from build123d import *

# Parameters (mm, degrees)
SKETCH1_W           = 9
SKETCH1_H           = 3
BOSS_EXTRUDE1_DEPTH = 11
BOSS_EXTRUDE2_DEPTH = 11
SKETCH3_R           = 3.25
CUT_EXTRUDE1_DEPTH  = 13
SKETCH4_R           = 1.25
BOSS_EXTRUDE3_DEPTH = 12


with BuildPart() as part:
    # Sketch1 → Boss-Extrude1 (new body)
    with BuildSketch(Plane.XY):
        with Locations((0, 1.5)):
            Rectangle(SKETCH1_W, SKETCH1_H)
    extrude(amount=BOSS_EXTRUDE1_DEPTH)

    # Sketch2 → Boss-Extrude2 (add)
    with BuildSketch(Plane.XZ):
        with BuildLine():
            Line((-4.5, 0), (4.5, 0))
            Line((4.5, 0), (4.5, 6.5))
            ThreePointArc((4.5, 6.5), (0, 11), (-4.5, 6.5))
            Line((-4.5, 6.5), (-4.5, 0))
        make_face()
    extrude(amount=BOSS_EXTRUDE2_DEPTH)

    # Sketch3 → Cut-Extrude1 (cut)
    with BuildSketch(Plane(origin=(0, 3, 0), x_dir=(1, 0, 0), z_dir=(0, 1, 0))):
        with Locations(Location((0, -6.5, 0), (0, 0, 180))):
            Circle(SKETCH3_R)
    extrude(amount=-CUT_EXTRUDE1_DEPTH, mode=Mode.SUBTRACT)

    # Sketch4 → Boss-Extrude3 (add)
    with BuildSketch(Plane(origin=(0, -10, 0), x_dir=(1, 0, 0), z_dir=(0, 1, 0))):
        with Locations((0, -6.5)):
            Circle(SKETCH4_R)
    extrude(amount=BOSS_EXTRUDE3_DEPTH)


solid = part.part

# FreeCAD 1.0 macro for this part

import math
import FreeCAD as App
import Part
import Sketcher

V = App.Vector
Q = App.Units.Quantity


def add_polygon(sketch, points):
    """Adds a closed chain of lines whose ends are joined by coincident constraints."""
    first, n = sketch.GeometryCount, len(points)
    for a, b in zip(points, points[1:] + points[:1]):
        sketch.addGeometry(Part.LineSegment(App.Vector(*a, 0), App.Vector(*b, 0)), False)
    for i in range(n):
        sketch.addConstraint(Sketcher.Constraint("Coincident", first + i, 2, first + (i + 1) % n, 1))

doc = App.newDocument("Part")
body = doc.addObject("PartDesign::Body", "Body")

# Sketch on XY plane
sketch1 = body.newObject("Sketcher::SketchObject", "Sketch")
sketch1.AttachmentSupport = (doc.getObject("XY_Plane"), [""])
sketch1.MapMode = "FlatFace"
add_polygon(sketch1, [(-4.5, 3), (-4.5, 0), (4.5, 0), (4.5, 3)])  # lines 0-3
sketch1.addConstraint(Sketcher.Constraint("Vertical", 0))
sketch1.addConstraint(Sketcher.Constraint("Horizontal", 1))
sketch1.addConstraint(Sketcher.Constraint("Vertical", 2))
sketch1.addConstraint(Sketcher.Constraint("Horizontal", 3))
sketch1.addConstraint(Sketcher.Constraint("Symmetric", 0, 2, 1, 2, -1, 1))
sketch1.addConstraint(Sketcher.Constraint("DistanceX", 1, 1, 1, 2, Q("9 mm")))
sketch1.addConstraint(Sketcher.Constraint("DistanceY", 0, 2, 0, 1, Q("3 mm")))
pad1 = body.newObject("PartDesign::Pad", "Pad")
pad1.Profile = sketch1
pad1.Length = 11

# Sketch on XZ plane
sketch2 = body.newObject("Sketcher::SketchObject", "Sketch001")
sketch2.AttachmentSupport = (doc.getObject("XZ_Plane"), [""])
sketch2.MapMode = "FlatFace"
sketch2.addGeometry(Part.LineSegment(V(-4.5, 0, 0), V(4.5, 0, 0)), False)
sketch2.addGeometry(Part.LineSegment(V(4.5, 0, 0), V(4.5, 6.5, 0)), False)
sketch2.addGeometry(Part.ArcOfCircle(Part.Circle(V(0, 6.5, 0), V(0, 0, 1), 4.5), math.radians(0), math.radians(180)), False)
sketch2.addGeometry(Part.LineSegment(V(-4.5, 6.5, 0), V(-4.5, 0, 0)), False)
sketch2.addConstraint(Sketcher.Constraint("Coincident", 0, 2, 1, 1))
sketch2.addConstraint(Sketcher.Constraint("Tangent", 1, 2, 2, 1))
sketch2.addConstraint(Sketcher.Constraint("Tangent", 2, 2, 3, 1))
sketch2.addConstraint(Sketcher.Constraint("Coincident", 3, 2, 0, 1))
sketch2.addConstraint(Sketcher.Constraint("Horizontal", 0))
sketch2.addConstraint(Sketcher.Constraint("Vertical", 1))
sketch2.addConstraint(Sketcher.Constraint("Vertical", 3))
sketch2.addConstraint(Sketcher.Constraint("Symmetric", 0, 2, 3, 2, -1, 1))
sketch2.addConstraint(Sketcher.Constraint("Radius", 2, Q("4.5 mm")))
sketch2.addConstraint(Sketcher.Constraint("DistanceY", 1, 1, 1, 2, Q("6.5 mm")))
pad2 = body.newObject("PartDesign::Pad", "Pad001")
pad2.Profile = sketch2
pad2.Length = 11

# Sketch on XZ plane
sketch3 = body.newObject("Sketcher::SketchObject", "Sketch002")
sketch3.AttachmentSupport = (doc.getObject("XZ_Plane"), [""])
sketch3.MapMode = "FlatFace"
sketch3.AttachmentOffset = App.Placement(V(0, 0, -3), App.Rotation())
sketch3.addGeometry(Part.Circle(V(0, 6.5, 0), V(0, 0, 1), 3.2), False)
sketch3.addConstraint(Sketcher.Constraint("PointOnObject", 0, 3, -2))
sketch3.addConstraint(Sketcher.Constraint("Diameter", 0, Q("6.5 mm")))
sketch3.addConstraint(Sketcher.Constraint("DistanceY", -1, 1, 0, 3, Q("6.5 mm")))
pocket1 = body.newObject("PartDesign::Pocket", "Pocket")
pocket1.Profile = sketch3
pocket1.Length = 13
pocket1.Reversed = True

# Sketch on XZ plane
sketch4 = body.newObject("Sketcher::SketchObject", "Sketch003")
sketch4.AttachmentSupport = (doc.getObject("XZ_Plane"), [""])
sketch4.MapMode = "FlatFace"
sketch4.AttachmentOffset = App.Placement(V(0, 0, 10), App.Rotation())
sketch4.addGeometry(Part.Circle(V(0, 6.5, 0), V(0, 0, 1), 1.2), False)
sketch4.addConstraint(Sketcher.Constraint("PointOnObject", 0, 3, -2))
sketch4.addConstraint(Sketcher.Constraint("Diameter", 0, Q("2.5 mm")))
sketch4.addConstraint(Sketcher.Constraint("DistanceY", -1, 1, 0, 3, Q("6.5 mm")))
pad3 = body.newObject("PartDesign::Pad", "Pad002")
pad3.Profile = sketch4
pad3.Length = 12
pad3.Reversed = True

doc.recompute()
